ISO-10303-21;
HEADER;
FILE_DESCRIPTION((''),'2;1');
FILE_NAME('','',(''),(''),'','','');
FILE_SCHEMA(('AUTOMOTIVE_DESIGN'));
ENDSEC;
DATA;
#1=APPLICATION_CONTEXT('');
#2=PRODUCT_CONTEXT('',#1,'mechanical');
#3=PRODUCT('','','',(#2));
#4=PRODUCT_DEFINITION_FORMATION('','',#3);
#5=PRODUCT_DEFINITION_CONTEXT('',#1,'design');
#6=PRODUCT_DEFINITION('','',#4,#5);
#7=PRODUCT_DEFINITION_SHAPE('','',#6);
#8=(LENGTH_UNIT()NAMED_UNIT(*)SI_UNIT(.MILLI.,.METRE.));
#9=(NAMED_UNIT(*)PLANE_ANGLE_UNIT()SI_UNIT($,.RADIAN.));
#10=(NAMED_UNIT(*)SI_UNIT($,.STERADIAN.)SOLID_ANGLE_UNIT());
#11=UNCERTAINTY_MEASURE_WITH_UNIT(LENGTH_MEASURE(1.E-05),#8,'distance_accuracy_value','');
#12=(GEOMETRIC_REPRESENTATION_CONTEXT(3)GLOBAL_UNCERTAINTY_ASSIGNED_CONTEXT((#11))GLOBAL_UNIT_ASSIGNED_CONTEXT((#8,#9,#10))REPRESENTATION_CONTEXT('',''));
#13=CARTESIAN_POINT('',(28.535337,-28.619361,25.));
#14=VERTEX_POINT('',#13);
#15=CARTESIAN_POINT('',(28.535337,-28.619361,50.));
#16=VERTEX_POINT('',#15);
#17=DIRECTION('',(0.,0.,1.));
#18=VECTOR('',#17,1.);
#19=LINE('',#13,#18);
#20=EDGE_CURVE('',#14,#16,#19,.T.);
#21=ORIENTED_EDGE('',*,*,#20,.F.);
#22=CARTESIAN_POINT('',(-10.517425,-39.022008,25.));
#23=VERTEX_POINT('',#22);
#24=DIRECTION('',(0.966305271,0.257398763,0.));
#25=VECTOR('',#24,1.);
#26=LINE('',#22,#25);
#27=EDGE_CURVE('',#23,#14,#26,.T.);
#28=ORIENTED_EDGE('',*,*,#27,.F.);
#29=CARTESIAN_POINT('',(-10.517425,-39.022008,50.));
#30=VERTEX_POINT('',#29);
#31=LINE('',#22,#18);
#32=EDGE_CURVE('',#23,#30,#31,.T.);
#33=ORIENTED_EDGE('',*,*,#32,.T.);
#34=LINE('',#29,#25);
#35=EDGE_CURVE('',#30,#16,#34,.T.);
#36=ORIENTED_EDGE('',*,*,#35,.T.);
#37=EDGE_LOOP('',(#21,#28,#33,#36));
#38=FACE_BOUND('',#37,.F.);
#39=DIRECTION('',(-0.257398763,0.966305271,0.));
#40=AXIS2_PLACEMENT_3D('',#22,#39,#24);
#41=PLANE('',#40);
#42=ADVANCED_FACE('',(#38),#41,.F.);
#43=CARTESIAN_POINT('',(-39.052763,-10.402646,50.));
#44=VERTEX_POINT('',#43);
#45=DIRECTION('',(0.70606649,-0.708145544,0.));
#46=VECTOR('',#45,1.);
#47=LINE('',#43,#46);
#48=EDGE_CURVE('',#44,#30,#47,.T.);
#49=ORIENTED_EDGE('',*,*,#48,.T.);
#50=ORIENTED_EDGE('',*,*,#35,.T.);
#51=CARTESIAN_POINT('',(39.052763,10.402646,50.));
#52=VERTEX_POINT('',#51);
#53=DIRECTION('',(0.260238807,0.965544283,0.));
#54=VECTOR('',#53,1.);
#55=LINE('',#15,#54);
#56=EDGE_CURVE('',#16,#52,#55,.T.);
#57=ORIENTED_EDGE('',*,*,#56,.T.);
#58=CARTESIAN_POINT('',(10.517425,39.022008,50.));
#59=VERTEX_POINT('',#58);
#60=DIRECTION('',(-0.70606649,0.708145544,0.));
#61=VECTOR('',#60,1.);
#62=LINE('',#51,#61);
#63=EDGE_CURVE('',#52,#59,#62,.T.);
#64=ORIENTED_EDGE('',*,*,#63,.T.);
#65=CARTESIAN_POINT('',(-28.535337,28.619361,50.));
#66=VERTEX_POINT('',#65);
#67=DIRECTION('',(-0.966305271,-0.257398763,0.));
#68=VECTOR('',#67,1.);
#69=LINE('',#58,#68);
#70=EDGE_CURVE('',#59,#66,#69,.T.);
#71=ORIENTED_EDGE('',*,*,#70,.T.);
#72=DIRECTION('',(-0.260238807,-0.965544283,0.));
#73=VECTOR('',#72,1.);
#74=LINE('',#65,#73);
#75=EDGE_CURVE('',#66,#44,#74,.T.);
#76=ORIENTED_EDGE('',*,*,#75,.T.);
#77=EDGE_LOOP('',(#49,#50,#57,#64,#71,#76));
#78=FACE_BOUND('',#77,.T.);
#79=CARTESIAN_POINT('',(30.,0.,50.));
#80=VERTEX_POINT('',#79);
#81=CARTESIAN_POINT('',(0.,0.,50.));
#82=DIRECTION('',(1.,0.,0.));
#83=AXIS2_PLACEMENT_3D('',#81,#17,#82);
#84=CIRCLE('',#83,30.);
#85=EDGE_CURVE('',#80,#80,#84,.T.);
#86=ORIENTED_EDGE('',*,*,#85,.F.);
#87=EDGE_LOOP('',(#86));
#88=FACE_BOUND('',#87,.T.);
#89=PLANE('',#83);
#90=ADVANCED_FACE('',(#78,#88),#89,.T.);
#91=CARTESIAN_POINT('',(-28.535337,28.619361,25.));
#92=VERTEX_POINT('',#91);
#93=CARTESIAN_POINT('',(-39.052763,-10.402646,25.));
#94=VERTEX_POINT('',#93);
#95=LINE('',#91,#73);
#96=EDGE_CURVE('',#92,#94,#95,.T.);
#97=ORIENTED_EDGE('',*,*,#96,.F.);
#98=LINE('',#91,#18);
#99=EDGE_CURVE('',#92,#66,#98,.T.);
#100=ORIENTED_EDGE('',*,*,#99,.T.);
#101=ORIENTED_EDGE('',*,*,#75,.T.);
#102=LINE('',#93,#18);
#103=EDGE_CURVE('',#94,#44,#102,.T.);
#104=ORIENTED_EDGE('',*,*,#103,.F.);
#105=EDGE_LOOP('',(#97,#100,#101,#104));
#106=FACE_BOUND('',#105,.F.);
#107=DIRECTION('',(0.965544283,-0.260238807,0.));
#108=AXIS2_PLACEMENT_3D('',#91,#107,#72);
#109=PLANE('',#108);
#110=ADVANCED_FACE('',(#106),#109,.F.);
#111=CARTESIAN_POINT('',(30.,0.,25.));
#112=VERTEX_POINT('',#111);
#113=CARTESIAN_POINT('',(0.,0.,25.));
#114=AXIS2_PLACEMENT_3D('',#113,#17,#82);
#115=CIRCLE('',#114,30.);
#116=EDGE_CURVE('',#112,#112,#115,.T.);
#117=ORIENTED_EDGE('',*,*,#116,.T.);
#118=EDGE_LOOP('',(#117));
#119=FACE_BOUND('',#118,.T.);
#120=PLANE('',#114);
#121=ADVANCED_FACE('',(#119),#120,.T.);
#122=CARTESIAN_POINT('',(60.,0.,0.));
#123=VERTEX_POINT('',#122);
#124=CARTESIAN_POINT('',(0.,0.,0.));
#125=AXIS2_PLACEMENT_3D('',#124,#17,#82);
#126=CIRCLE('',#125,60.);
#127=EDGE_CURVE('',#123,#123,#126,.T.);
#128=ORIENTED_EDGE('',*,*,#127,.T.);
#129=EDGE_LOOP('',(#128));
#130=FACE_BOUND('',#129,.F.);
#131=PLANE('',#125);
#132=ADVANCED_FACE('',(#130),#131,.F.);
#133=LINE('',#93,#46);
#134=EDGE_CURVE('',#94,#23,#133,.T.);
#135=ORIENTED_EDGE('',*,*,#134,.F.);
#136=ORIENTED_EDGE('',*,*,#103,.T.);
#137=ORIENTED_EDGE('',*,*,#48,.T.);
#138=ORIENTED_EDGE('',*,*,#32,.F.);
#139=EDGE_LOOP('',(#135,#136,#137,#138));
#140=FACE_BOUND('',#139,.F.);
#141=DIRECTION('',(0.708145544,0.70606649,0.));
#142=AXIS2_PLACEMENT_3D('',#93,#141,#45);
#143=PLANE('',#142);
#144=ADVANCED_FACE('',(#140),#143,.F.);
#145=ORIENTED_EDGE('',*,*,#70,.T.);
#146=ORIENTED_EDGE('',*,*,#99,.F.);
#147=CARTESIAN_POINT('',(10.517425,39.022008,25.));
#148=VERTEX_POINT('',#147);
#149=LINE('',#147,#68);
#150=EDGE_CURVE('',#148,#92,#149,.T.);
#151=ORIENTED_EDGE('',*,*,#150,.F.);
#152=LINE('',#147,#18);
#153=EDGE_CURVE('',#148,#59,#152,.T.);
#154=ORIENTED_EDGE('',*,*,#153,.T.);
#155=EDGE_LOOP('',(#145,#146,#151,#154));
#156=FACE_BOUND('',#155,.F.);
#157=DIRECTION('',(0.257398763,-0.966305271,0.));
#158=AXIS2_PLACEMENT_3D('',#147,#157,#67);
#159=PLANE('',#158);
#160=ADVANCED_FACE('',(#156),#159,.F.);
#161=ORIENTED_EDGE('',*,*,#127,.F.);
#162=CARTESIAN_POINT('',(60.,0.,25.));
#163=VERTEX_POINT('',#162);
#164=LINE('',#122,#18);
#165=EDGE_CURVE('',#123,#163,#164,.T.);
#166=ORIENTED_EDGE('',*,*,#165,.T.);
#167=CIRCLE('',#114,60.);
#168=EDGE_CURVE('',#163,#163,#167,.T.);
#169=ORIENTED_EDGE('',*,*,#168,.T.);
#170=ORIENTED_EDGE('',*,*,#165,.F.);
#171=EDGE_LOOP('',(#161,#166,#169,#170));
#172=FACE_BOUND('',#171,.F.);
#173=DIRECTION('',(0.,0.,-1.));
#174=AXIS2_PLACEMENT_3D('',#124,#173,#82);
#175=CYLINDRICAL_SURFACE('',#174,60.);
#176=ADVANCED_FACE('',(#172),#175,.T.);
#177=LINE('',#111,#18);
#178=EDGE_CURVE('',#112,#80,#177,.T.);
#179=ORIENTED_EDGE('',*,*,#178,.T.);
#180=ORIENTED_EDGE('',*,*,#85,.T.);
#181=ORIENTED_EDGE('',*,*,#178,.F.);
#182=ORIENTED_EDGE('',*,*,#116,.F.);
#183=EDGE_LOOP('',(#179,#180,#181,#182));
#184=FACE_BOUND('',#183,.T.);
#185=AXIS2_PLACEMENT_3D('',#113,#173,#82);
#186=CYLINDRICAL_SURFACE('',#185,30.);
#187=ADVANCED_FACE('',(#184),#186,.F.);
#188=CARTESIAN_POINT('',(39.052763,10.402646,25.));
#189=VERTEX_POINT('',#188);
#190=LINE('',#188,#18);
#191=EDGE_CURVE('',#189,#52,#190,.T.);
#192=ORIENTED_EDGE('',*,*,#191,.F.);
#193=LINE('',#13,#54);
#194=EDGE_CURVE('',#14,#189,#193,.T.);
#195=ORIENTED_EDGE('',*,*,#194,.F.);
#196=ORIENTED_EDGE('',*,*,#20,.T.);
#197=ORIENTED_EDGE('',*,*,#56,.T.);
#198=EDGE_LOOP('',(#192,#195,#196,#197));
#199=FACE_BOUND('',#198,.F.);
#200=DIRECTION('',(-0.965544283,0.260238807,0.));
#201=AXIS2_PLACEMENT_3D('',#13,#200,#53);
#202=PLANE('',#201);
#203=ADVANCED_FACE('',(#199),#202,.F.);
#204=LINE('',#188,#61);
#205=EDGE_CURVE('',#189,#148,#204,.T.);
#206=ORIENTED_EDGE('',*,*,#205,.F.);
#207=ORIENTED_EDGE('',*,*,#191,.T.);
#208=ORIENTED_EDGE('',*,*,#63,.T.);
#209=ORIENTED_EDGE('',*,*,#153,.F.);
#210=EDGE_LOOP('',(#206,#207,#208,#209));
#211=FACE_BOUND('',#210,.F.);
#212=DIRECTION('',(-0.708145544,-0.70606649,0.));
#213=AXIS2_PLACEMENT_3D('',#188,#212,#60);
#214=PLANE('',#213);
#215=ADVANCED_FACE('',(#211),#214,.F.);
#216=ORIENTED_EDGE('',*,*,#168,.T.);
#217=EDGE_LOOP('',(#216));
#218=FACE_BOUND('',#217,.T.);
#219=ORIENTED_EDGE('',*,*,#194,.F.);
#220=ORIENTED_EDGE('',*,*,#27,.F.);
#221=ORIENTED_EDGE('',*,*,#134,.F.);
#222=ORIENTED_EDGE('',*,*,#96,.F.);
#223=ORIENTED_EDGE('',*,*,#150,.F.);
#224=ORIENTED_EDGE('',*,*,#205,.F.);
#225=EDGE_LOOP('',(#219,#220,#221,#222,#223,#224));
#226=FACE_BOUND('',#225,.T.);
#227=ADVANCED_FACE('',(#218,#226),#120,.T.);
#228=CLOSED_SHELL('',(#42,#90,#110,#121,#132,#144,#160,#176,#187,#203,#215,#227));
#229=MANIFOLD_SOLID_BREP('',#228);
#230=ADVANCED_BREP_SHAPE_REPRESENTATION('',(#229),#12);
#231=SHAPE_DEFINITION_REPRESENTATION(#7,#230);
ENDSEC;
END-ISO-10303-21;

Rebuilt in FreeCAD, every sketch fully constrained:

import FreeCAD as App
import Part
import Sketcher

V = App.Vector
Q = App.Units.Quantity


def add_polygon(sketch, points):
    """Adds a closed chain of lines whose ends are joined by coincident constraints."""
    first, n = sketch.GeometryCount, len(points)
    for a, b in zip(points, points[1:] + points[:1]):
        sketch.addGeometry(Part.LineSegment(App.Vector(*a, 0), App.Vector(*b, 0)), False)
    for i in range(n):
        sketch.addConstraint(Sketcher.Constraint("Coincident", first + i, 2, first + (i + 1) % n, 1))

doc = App.newDocument("Part")
body = doc.addObject("PartDesign::Body", "Body")

sketch1 = body.newObject("Sketcher::SketchObject", "Sketch")
sketch1.AttachmentSupport = (doc.getObject("XY_Plane"), [""])
sketch1.MapMode = "FlatFace"
sketch1.addGeometry(Part.Circle(V(0, 0, 0), V(0, 0, 1), 60), False)
sketch1.addConstraint([
    Sketcher.Constraint("Coincident", 0, 3, -1, 1),
    Sketcher.Constraint("Diameter", 0, Q("120 mm")),
])
pad1 = body.newObject("PartDesign::Pad", "Pad")
pad1.Profile = sketch1
pad1.Length = 25

sketch2 = body.newObject("Sketcher::SketchObject", "Sketch001")
sketch2.AttachmentSupport = (doc.getObject("XY_Plane"), [""])
sketch2.MapMode = "FlatFace"
sketch2.AttachmentOffset = App.Placement(V(0, 0, 25), App.Rotation())
add_polygon(sketch2, [(10.517425, 39.022008), (-28.535337, 28.619361), (-39.052763, -10.402646), (-10.517425, -39.022008), (28.535337, -28.619361), (39.052763, 10.402646)])
sketch2.addGeometry(Part.Circle(V(0, 0, 0), V(0, 0, 1), 30), False)
sketch2.addConstraint([
    Sketcher.Constraint("Coincident", 6, 3, -1, 1),
    Sketcher.Constraint("Symmetric", 0, 2, 3, 2, -1, 1),
    Sketcher.Constraint("Symmetric", 1, 2, 4, 2, -1, 1),
    Sketcher.Constraint("Symmetric", 2, 2, 5, 2, -1, 1),
    Sketcher.Constraint("Equal", 0, 1),
    Sketcher.Constraint("Equal", 1, 2),
    Sketcher.Constraint("Diameter", 6, Q("60 mm")),
    Sketcher.Constraint("DistanceX", 1, 2, 3, 2, Q("67.5881 mm")),
    Sketcher.Constraint("Distance", 0, Q("40.414518 mm")),
    Sketcher.Constraint("DistanceY", -1, 1, 0, 2, Q("28.619361 mm")),
    Sketcher.Constraint("DistanceY", 2, 2, 1, 2, Q("28.619362 mm")),
])
pad2 = body.newObject("PartDesign::Pad", "Pad001")
pad2.Profile = sketch2
pad2.Length = 25

doc.recompute()
